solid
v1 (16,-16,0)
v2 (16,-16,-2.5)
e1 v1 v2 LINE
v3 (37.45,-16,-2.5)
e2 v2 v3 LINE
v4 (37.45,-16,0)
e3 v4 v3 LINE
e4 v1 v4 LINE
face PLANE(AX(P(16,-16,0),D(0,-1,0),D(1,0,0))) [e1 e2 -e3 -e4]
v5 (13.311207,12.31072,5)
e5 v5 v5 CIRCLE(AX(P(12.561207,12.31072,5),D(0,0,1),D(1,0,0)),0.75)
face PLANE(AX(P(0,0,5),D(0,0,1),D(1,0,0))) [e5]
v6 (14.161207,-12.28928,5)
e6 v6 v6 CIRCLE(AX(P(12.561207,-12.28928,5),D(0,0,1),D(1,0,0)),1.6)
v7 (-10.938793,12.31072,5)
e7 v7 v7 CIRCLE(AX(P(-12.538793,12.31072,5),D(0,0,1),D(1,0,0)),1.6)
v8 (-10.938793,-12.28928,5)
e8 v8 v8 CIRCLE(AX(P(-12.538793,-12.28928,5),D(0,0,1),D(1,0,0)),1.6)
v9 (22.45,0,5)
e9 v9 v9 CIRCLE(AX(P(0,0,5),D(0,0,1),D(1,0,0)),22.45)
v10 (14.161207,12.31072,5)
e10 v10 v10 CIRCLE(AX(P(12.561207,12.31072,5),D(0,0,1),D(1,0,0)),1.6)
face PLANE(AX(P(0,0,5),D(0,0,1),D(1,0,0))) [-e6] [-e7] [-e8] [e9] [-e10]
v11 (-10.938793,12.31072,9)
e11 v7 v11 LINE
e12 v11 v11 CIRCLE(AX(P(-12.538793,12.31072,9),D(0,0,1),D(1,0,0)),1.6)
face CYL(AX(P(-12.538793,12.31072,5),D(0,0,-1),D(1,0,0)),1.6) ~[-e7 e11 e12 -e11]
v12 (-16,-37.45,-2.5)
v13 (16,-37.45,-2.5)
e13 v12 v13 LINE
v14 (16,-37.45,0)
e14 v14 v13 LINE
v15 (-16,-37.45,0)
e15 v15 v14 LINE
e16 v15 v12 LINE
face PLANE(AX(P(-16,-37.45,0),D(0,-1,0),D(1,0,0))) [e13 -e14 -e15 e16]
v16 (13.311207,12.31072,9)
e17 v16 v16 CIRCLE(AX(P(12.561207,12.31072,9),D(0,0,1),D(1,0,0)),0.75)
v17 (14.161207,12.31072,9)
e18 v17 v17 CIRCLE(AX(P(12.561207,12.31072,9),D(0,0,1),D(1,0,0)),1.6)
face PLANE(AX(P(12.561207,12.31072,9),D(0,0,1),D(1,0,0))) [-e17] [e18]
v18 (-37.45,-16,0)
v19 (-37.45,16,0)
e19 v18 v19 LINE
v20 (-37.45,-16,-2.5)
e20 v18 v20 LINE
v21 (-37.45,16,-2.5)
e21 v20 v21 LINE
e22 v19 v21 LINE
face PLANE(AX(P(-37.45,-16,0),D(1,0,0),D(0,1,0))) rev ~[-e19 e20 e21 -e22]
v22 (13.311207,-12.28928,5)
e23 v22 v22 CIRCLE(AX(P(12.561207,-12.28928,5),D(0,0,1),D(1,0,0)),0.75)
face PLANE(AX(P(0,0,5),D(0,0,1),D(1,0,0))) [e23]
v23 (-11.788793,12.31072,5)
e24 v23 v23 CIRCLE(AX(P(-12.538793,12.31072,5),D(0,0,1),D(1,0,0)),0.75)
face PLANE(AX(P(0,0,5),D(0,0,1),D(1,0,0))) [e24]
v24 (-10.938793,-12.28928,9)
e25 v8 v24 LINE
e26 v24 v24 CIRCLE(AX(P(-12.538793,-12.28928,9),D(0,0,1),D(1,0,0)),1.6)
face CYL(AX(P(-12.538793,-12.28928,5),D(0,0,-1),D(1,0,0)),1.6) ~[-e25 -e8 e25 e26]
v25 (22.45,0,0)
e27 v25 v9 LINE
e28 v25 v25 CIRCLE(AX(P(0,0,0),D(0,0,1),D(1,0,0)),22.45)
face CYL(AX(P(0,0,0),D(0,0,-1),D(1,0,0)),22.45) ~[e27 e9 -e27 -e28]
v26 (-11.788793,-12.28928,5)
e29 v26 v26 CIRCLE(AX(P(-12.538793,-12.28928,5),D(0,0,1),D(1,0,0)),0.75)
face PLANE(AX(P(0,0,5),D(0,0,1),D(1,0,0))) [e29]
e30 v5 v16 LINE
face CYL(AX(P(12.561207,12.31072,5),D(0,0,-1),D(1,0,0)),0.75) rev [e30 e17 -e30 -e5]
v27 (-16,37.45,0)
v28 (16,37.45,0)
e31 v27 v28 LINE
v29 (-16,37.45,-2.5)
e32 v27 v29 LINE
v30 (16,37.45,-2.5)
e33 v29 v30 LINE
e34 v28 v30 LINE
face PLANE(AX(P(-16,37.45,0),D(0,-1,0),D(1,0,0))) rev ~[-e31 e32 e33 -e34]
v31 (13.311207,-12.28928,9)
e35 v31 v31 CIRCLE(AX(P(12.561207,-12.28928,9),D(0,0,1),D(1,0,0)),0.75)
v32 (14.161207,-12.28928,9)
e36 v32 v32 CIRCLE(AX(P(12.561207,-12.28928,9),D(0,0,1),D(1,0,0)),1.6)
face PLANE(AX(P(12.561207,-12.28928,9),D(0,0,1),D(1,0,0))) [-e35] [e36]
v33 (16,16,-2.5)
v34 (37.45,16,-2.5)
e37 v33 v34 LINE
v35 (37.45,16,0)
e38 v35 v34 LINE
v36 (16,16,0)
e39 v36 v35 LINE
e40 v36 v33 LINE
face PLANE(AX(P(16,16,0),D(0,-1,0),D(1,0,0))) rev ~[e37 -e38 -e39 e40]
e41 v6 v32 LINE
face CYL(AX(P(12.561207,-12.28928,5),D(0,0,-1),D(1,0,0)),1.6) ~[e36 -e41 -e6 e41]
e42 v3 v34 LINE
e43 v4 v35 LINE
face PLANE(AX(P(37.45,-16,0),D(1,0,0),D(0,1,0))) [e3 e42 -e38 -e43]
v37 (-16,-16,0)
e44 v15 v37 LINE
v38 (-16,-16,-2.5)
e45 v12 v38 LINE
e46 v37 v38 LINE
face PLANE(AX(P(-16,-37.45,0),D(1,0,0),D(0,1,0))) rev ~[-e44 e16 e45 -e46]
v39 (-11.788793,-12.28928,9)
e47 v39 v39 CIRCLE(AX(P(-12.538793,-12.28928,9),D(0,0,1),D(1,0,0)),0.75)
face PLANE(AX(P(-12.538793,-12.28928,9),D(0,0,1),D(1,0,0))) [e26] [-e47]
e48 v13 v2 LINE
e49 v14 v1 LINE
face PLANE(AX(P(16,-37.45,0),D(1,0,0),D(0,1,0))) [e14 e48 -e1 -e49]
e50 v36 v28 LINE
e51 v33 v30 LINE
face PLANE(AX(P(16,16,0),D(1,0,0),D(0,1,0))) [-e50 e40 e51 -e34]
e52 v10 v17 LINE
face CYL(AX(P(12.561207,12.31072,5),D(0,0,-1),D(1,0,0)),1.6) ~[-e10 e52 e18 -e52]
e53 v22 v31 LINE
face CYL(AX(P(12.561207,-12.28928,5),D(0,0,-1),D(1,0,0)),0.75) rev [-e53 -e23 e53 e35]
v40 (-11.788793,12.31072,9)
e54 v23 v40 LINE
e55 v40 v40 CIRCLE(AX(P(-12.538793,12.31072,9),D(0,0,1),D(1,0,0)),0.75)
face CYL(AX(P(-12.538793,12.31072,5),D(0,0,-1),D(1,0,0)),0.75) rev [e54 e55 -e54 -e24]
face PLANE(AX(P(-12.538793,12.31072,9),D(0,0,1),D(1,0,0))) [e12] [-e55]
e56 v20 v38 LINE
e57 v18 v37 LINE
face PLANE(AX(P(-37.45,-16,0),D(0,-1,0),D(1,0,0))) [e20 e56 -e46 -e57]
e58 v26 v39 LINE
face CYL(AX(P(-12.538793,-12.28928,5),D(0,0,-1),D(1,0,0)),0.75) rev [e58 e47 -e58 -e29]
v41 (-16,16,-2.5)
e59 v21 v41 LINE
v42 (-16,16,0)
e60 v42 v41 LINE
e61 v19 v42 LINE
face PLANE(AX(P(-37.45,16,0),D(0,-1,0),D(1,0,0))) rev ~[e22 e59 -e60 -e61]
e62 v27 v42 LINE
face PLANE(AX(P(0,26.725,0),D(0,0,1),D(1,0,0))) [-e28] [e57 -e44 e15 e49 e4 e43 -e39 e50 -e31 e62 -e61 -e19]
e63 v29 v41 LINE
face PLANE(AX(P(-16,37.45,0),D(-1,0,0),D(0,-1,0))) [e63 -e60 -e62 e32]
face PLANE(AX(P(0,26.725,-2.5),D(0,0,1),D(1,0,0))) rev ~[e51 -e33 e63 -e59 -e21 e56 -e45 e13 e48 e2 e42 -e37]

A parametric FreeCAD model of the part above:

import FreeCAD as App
import Part
import Sketcher
from FreeCAD import Vector


def add_polygon(sketch, points):
    """Adds a closed chain of lines whose ends are joined by coincident constraints."""
    first, n = sketch.GeometryCount, len(points)
    for a, b in zip(points, points[1:] + points[:1]):
        sketch.addGeometry(Part.LineSegment(App.Vector(*a, 0), App.Vector(*b, 0)), False)
    for i in range(n):
        sketch.addConstraint(Sketcher.Constraint("Coincident", first + i, 2, first + (i + 1) % n, 1))

doc = App.newDocument("Part")
body = doc.addObject("PartDesign::Body", "Body")

sketch1 = doc.addObject("Sketcher::SketchObject", "Sketch")
body.addObject(sketch1)
sketch1.AttachmentSupport = (doc.XY_Plane, [""])
sketch1.MapMode = "FlatFace"
sketch1.addGeometry(Part.Circle(Vector(0, 0, 0), Vector(0, 0, 1), 22), False)
sketch1.addConstraint(Sketcher.Constraint("Coincident", 0, 3, -1, 1))
sketch1.addConstraint(Sketcher.Constraint("Diameter", 0, 44.9))
pad1 = doc.addObject("PartDesign::Pad", "Pad")
body.addObject(pad1)
pad1.Profile = sketch1
pad1.Length = 5

sketch2 = doc.addObject("Sketcher::SketchObject", "Sketch001")
body.addObject(sketch2)
sketch2.AttachmentSupport = (doc.XY_Plane, [""])
sketch2.MapMode = "FlatFace"
add_polygon(sketch2, [(-16, 37), (-16, 16), (-37, 16), (-37, -16), (-16, -16), (-16, -37), (16, -37), (16, -16), (37, -16), (37, 16), (16, 16), (16, 37)])
sketch2.addConstraint(Sketcher.Constraint("Vertical", 0))
sketch2.addConstraint(Sketcher.Constraint("Horizontal", 1))
sketch2.addConstraint(Sketcher.Constraint("Vertical", 2))
sketch2.addConstraint(Sketcher.Constraint("Horizontal", 3))
sketch2.addConstraint(Sketcher.Constraint("Vertical", 4))
sketch2.addConstraint(Sketcher.Constraint("Horizontal", 5))
sketch2.addConstraint(Sketcher.Constraint("Vertical", 6))
sketch2.addConstraint(Sketcher.Constraint("Horizontal", 7))
sketch2.addConstraint(Sketcher.Constraint("Vertical", 8))
sketch2.addConstraint(Sketcher.Constraint("Horizontal", 9))
sketch2.addConstraint(Sketcher.Constraint("Vertical", 10))
sketch2.addConstraint(Sketcher.Constraint("Horizontal", 11))
sketch2.addConstraint(Sketcher.Constraint("Symmetric", 0, 2, 6, 2, -1, 1))
sketch2.addConstraint(Sketcher.Constraint("Symmetric", 2, 2, 8, 2, -1, 1))
sketch2.addConstraint(Sketcher.Constraint("Symmetric", 4, 2, 10, 2, -1, 1))
sketch2.addConstraint(Sketcher.Constraint("Symmetric", 3, 2, 6, 2, -2))
sketch2.addConstraint(Sketcher.Constraint("Equal", 9, 0))
sketch2.addConstraint(Sketcher.Constraint("Equal", 11, 2))
sketch2.addConstraint(Sketcher.Constraint("DistanceX", 5, 1, 5, 2, 32.0))
sketch2.addConstraint(Sketcher.Constraint("DistanceX", 1, 2, 1, 1, 21.45))
pad2 = doc.addObject("PartDesign::Pad", "Pad001")
body.addObject(pad2)
pad2.Profile = sketch2
pad2.Length = 2.5
pad2.Reversed = True

sketch3 = doc.addObject("Sketcher::SketchObject", "Sketch002")
body.addObject(sketch3)
sketch3.AttachmentSupport = (doc.XY_Plane, [""])
sketch3.MapMode = "FlatFace"
sketch3.AttachmentOffset = App.Placement(Vector(0, 0, 5), App.Rotation())
sketch3.addGeometry(Part.Circle(Vector(12.6, 12.3, 0), Vector(0, 0, 1), 1.6), False)
sketch3.addGeometry(Part.Circle(Vector(12.6, 12.3, 0), Vector(0, 0, 1), 0.8), False)
sketch3.addGeometry(Part.Circle(Vector(-12.5, 12.3, 0), Vector(0, 0, 1), 1.6), False)
sketch3.addGeometry(Part.Circle(Vector(-12.5, 12.3, 0), Vector(0, 0, 1), 0.8), False)
sketch3.addGeometry(Part.Circle(Vector(-12.5, -12.3, 0), Vector(0, 0, 1), 1.6), False)
sketch3.addGeometry(Part.Circle(Vector(-12.5, -12.3, 0), Vector(0, 0, 1), 0.8), False)
sketch3.addGeometry(Part.Circle(Vector(12.6, -12.3, 0), Vector(0, 0, 1), 1.6), False)
sketch3.addGeometry(Part.Circle(Vector(12.6, -12.3, 0), Vector(0, 0, 1), 0.8), False)
sketch3.addConstraint(Sketcher.Constraint("Coincident", 1, 3, 0, 3))
sketch3.addConstraint(Sketcher.Constraint("Coincident", 3, 3, 2, 3))
sketch3.addConstraint(Sketcher.Constraint("Coincident", 5, 3, 4, 3))
sketch3.addConstraint(Sketcher.Constraint("Coincident", 7, 3, 6, 3))
sketch3.addConstraint(Sketcher.Constraint("Equal", 0, 2))
sketch3.addConstraint(Sketcher.Constraint("Equal", 1, 3))
sketch3.addConstraint(Sketcher.Constraint("Equal", 2, 4))
sketch3.addConstraint(Sketcher.Constraint("Equal", 3, 5))
sketch3.addConstraint(Sketcher.Constraint("Equal", 4, 6))
sketch3.addConstraint(Sketcher.Constraint("Equal", 5, 7))
sketch3.addConstraint(Sketcher.Constraint("Horizontal", 1, 3, 2, 3))
sketch3.addConstraint(Sketcher.Constraint("Horizontal", 5, 3, 6, 3))
sketch3.addConstraint(Sketcher.Constraint("Vertical", 3, 3, 4, 3))
sketch3.addConstraint(Sketcher.Constraint("Vertical", 1, 3, 6, 3))
sketch3.addConstraint(Sketcher.Constraint("Diameter", 0, 3.2))
sketch3.addConstraint(Sketcher.Constraint("Diameter", 1, 1.5))
sketch3.addConstraint(Sketcher.Constraint("DistanceX", 2, 3, 0, 3, 25.1))
sketch3.addConstraint(Sketcher.Constraint("DistanceY", 4, 3, 2, 3, 24.6))
sketch3.addConstraint(Sketcher.Constraint("DistanceY", -1, 1, 0, 3, 12.31072))
sketch3.addConstraint(Sketcher.Constraint("DistanceX", -1, 1, 0, 3, 12.561207))
pad3 = doc.addObject("PartDesign::Pad", "Pad002")
body.addObject(pad3)
pad3.Profile = sketch3
pad3.Length = 4

doc.recompute()
